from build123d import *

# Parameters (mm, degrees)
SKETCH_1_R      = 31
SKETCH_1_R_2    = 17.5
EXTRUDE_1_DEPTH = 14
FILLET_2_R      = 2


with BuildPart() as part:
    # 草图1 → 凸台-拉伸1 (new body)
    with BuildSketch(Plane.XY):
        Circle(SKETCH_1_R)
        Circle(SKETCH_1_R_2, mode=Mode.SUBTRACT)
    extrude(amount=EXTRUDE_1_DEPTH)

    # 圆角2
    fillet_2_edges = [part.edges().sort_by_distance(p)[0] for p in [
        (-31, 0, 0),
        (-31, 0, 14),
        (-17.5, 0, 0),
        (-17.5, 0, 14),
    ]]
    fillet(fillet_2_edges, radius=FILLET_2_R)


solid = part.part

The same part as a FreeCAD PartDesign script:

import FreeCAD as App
import Part
import Sketcher
from FreeCAD import Vector
Q = App.Units.Quantity


def edges_at(feature, points):
    """Names of the edges that pass closest to the given points."""
    edges = feature.Shape.Edges
    near = lambda p: min(range(len(edges)), key=lambda i: edges[i].distToShape(Part.Vertex(*p))[0])
    return sorted({f"Edge{near(p) + 1}" for p in points})

doc = App.newDocument("Part")
body = doc.addObject("PartDesign::Body", "Body")

# Sketch on XY plane
sketch1 = body.newObject("Sketcher::SketchObject", "Sketch")
sketch1.AttachmentSupport = (doc.getObject("XY_Plane"), [""])
sketch1.MapMode = "FlatFace"
sketch1.addGeometry([
    Part.Circle(Vector(0, 0, 0), Vector(0, 0, 1), 31),
    Part.Circle(Vector(0, 0, 0), Vector(0, 0, 1), 18),
], False)
sketch1.addConstraint([
    Sketcher.Constraint("Coincident", 0, 3, -1, 1),
    Sketcher.Constraint("Coincident", 1, 3, -1, 1),
    Sketcher.Constraint("Diameter", 0, Q("62 mm")),
    Sketcher.Constraint("Diameter", 1, Q("35 mm")),
])
pad1 = body.newObject("PartDesign::Pad", "Pad")
pad1.Profile = sketch1
pad1.Length = 14
doc.recompute()

fillet = body.newObject("PartDesign::Fillet", "Fillet")
fillet.Base = (pad1, edges_at(pad1, [
    (-31, 0, 0),
    (-31, 0, 14),
    (-17.5, 0, 0),
    (-17.5, 0, 14),
]))
fillet.Radius = 2

doc.recompute()
